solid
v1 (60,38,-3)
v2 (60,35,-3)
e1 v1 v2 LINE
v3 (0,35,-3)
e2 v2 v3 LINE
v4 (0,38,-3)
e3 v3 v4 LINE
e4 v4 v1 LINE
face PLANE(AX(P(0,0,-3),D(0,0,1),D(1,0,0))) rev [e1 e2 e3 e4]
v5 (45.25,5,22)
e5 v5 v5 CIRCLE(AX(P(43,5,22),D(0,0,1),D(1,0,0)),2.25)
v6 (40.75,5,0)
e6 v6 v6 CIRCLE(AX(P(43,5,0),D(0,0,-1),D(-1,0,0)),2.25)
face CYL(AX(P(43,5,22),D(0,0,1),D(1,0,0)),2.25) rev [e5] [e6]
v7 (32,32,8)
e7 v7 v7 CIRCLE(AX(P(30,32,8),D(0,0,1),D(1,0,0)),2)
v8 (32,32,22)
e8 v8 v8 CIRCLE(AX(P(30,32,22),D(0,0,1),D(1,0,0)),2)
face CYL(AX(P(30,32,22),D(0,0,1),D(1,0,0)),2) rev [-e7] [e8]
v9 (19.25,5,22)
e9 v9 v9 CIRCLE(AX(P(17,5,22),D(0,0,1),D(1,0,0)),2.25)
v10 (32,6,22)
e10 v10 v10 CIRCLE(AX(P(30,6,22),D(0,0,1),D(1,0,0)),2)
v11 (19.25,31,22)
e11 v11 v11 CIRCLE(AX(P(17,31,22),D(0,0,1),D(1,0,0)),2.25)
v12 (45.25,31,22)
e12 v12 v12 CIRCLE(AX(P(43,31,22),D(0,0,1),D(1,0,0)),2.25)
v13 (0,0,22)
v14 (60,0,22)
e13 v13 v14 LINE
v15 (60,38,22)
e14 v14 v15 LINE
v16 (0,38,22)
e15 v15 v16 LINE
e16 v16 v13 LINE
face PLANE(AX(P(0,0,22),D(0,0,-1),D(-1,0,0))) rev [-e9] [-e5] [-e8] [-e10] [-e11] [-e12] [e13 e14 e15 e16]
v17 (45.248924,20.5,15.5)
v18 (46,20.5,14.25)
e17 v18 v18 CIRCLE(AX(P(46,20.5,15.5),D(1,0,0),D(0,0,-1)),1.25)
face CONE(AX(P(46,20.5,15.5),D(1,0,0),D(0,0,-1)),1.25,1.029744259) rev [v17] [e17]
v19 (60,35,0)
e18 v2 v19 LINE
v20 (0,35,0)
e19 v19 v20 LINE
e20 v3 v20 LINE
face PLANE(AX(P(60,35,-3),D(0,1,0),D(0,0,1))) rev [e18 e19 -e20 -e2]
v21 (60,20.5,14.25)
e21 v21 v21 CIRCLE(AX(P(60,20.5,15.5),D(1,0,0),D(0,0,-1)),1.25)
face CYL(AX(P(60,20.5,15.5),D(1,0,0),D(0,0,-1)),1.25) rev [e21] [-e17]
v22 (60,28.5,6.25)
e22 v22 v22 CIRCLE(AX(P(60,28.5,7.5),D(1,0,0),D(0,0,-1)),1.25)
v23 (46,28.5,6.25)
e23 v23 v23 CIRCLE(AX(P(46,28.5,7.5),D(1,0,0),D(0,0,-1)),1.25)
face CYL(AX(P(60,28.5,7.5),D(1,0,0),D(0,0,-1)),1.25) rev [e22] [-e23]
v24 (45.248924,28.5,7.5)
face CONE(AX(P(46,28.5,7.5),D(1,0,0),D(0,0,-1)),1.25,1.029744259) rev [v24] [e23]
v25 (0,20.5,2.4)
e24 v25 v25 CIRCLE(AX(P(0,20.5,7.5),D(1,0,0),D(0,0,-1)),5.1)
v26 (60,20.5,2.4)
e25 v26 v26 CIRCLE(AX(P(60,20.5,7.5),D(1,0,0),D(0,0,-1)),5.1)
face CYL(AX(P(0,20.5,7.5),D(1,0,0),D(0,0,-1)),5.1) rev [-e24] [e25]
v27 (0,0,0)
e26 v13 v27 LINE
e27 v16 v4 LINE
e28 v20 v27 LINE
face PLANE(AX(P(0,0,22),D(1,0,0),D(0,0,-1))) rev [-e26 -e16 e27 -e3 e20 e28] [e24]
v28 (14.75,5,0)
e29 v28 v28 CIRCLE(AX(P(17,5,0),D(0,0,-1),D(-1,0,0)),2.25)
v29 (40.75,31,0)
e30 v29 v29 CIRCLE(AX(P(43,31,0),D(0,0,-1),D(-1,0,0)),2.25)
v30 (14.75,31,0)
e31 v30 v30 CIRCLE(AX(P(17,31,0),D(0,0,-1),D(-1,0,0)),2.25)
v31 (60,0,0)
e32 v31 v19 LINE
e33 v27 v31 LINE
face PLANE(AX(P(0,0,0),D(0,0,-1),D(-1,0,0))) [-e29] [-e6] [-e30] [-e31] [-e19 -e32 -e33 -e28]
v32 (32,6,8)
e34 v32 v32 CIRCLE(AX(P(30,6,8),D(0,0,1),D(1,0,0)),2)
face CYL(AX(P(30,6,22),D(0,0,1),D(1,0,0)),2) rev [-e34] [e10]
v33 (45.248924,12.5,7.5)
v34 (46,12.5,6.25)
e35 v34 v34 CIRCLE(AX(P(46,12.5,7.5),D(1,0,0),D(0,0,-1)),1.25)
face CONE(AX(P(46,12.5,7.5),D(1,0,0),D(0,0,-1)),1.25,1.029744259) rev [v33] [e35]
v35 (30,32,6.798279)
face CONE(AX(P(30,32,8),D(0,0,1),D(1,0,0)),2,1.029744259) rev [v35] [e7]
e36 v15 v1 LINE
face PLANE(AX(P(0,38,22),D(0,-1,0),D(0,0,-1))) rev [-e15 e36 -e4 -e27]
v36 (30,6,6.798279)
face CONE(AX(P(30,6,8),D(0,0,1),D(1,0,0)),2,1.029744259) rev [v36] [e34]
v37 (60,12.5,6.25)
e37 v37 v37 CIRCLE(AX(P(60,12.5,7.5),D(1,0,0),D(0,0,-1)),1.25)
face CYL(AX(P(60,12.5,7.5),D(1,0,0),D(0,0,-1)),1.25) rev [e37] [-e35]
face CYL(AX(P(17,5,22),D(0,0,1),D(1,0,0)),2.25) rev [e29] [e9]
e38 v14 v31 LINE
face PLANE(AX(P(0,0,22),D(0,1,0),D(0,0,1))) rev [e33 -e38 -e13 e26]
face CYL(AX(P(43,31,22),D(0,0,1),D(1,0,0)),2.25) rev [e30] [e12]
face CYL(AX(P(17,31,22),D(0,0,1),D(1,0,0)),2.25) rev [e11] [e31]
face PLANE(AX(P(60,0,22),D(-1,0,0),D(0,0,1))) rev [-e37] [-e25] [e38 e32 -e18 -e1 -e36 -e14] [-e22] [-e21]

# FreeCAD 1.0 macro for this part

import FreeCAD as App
import Part
import Sketcher


def add_polygon(sketch, points):
    """Adds a closed chain of lines whose ends are joined by coincident constraints."""
    first, n = sketch.GeometryCount, len(points)
    for a, b in zip(points, points[1:] + points[:1]):
        sketch.addGeometry(Part.LineSegment(App.Vector(*a, 0), App.Vector(*b, 0)), False)
    for i in range(n):
        sketch.addConstraint(Sketcher.Constraint("Coincident", first + i, 2, first + (i + 1) % n, 1))

doc = App.newDocument("Part")
body = doc.addObject("PartDesign::Body", "Body")

# Sketch on XY plane
sketch1 = body.newObject("Sketcher::SketchObject", "Sketch")
sketch1.AttachmentSupport = (doc.getObject("XY_Plane"), [""])
sketch1.MapMode = "FlatFace"
add_polygon(sketch1, [(0, 38), (0, 0), (60, 0), (60, 38)])  # lines 0-3
sketch1.addConstraint(Sketcher.Constraint("Vertical", 0))
sketch1.addConstraint(Sketcher.Constraint("Horizontal", 1))
sketch1.addConstraint(Sketcher.Constraint("Vertical", 2))
sketch1.addConstraint(Sketcher.Constraint("Horizontal", 3))
sketch1.addConstraint(Sketcher.Constraint("Coincident", 0, 2, -1, 1))
sketch1.addConstraint(Sketcher.Constraint("DistanceX", 1, 1, 1, 2, 60.0))
sketch1.addConstraint(Sketcher.Constraint("DistanceY", 0, 2, 0, 1, 38.0))
pad1 = body.newObject("PartDesign::Pad", "Pad")
pad1.Profile = sketch1
pad1.Length = 22

# Sketch on YZ plane
sketch2 = body.newObject("Sketcher::SketchObject", "Sketch001")
sketch2.AttachmentSupport = (doc.getObject("YZ_Plane"), [""])
sketch2.MapMode = "FlatFace"
sketch2.AttachmentOffset = App.Placement(App.Vector(0, 0, 60), App.Rotation())
sketch2.addGeometry(Part.Circle(App.Vector(20, 8, 0), App.Vector(0, 0, 1), 5), False)
sketch2.addConstraint(Sketcher.Constraint("Diameter", 0, 10.2))
sketch2.addConstraint(Sketcher.Constraint("DistanceX", -1, 1, 0, 3, 20.5))
sketch2.addConstraint(Sketcher.Constraint("DistanceY", -1, 1, 0, 3, 7.5))
pocket1 = body.newObject("PartDesign::Pocket", "Pocket")
pocket1.Profile = sketch2
pocket1.Type = "ThroughAll"

# Sketch on XY plane
sketch3 = body.newObject("Sketcher::SketchObject", "Sketch002")
sketch3.AttachmentSupport = (doc.getObject("XY_Plane"), [""])
sketch3.MapMode = "FlatFace"
sketch3.AttachmentOffset = App.Placement(App.Vector(0, 0, 22), App.Rotation())
sketch3.addGeometry(Part.Circle(App.Vector(30, 6, 0), App.Vector(0, 0, 1), 2), False)
sketch3.addGeometry(Part.Circle(App.Vector(30, 32, 0), App.Vector(0, 0, 1), 2), False)
sketch3.addConstraint(Sketcher.Constraint("Equal", 0, 1))
sketch3.addConstraint(Sketcher.Constraint("Vertical", 0, 3, 1, 3))
sketch3.addConstraint(Sketcher.Constraint("Diameter", 0, 4.0))
sketch3.addConstraint(Sketcher.Constraint("DistanceX", -1, 1, 0, 3, 30.0))
sketch3.addConstraint(Sketcher.Constraint("DistanceY", -1, 1, 0, 3, 6.0))
sketch3.addConstraint(Sketcher.Constraint("DistanceY", -1, 1, 1, 3, 32.0))
doc.recompute()
hole = body.newObject("PartDesign::Hole", "Hole")
hole.Profile = sketch3
hole.ThreadType = "None"
hole.Diameter = 4
hole.DepthType = "Dimension"
hole.Depth = 14
hole.DrillPoint = "Angled"
hole.DrillPointAngle = 118

# Sketch on XY plane
sketch4 = body.newObject("Sketcher::SketchObject", "Sketch003")
sketch4.AttachmentSupport = (doc.getObject("XY_Plane"), [""])
sketch4.MapMode = "FlatFace"
add_polygon(sketch4, [(60, 38), (60, 35), (0, 35), (0, 38)])  # lines 0-3
sketch4.addConstraint(Sketcher.Constraint("Vertical", 0))
sketch4.addConstraint(Sketcher.Constraint("Horizontal", 1))
sketch4.addConstraint(Sketcher.Constraint("Vertical", 2))
sketch4.addConstraint(Sketcher.Constraint("Horizontal", 3))
sketch4.addConstraint(Sketcher.Constraint("PointOnObject", 1, 2, -2))
sketch4.addConstraint(Sketcher.Constraint("DistanceX", 1, 2, 1, 1, 60.0))
sketch4.addConstraint(Sketcher.Constraint("DistanceY", 0, 2, 0, 1, 3.0))
sketch4.addConstraint(Sketcher.Constraint("DistanceY", -1, 1, 0, 2, 35.0))
pad2 = body.newObject("PartDesign::Pad", "Pad001")
pad2.Profile = sketch4
pad2.Length = 3
pad2.Reversed = True

# Sketch on YZ plane
sketch5 = body.newObject("Sketcher::SketchObject", "Sketch004")
sketch5.AttachmentSupport = (doc.getObject("YZ_Plane"), [""])
sketch5.MapMode = "FlatFace"
sketch5.AttachmentOffset = App.Placement(App.Vector(0, 0, 60), App.Rotation())
sketch5.addGeometry(Part.Circle(App.Vector(20.5, 15.5, 0), App.Vector(0, 0, 1), 1.2), False)
sketch5.addGeometry(Part.Circle(App.Vector(12.5, 7.5, 0), App.Vector(0, 0, 1), 1.2), False)
sketch5.addGeometry(Part.Circle(App.Vector(28.5, 7.5, 0), App.Vector(0, 0, 1), 1.2), False)
sketch5.addConstraint(Sketcher.Constraint("Equal", 0, 1))
sketch5.addConstraint(Sketcher.Constraint("Equal", 1, 2))
sketch5.addConstraint(Sketcher.Constraint("Horizontal", 1, 3, 2, 3))
sketch5.addConstraint(Sketcher.Constraint("Diameter", 0, 2.5))
sketch5.addConstraint(Sketcher.Constraint("DistanceX", 1, 3, 0, 3, 8.0))
sketch5.addConstraint(Sketcher.Constraint("DistanceY", 1, 3, 0, 3, 8.0))
sketch5.addConstraint(Sketcher.Constraint("DistanceX", 0, 3, 2, 3, 8.0))
sketch5.addConstraint(Sketcher.Constraint("DistanceX", -1, 1, 0, 3, 20.5))
sketch5.addConstraint(Sketcher.Constraint("DistanceY", -1, 1, 0, 3, 15.5))
doc.recompute()
hole2 = body.newObject("PartDesign::Hole", "Hole001")
hole2.Profile = sketch5
hole2.ThreadType = "None"
hole2.Diameter = 2.5
hole2.DepthType = "Dimension"
hole2.Depth = 14
hole2.DrillPoint = "Angled"
hole2.DrillPointAngle = 118

# Sketch on XY plane
sketch6 = body.newObject("Sketcher::SketchObject", "Sketch005")
sketch6.AttachmentSupport = (doc.getObject("XY_Plane"), [""])
sketch6.MapMode = "FlatFace"
sketch6.AttachmentOffset = App.Placement(App.Vector(0, 0, 22), App.Rotation())
sketch6.addGeometry(Part.Circle(App.Vector(43, 5, 0), App.Vector(0, 0, 1), 2.2), False)
sketch6.addGeometry(Part.Circle(App.Vector(43, 31, 0), App.Vector(0, 0, 1), 2.2), False)
sketch6.addGeometry(Part.Circle(App.Vector(17, 5, 0), App.Vector(0, 0, 1), 2.2), False)
sketch6.addGeometry(Part.Circle(App.Vector(17, 31, 0), App.Vector(0, 0, 1), 2.2), False)
sketch6.addConstraint(Sketcher.Constraint("Equal", 0, 1))
sketch6.addConstraint(Sketcher.Constraint("Equal", 1, 2))
sketch6.addConstraint(Sketcher.Constraint("Equal", 2, 3))
sketch6.addConstraint(Sketcher.Constraint("Horizontal", 0, 3, 2, 3))
sketch6.addConstraint(Sketcher.Constraint("Horizontal", 1, 3, 3, 3))
sketch6.addConstraint(Sketcher.Constraint("Vertical", 0, 3, 1, 3))
sketch6.addConstraint(Sketcher.Constraint("Vertical", 2, 3, 3, 3))
sketch6.addConstraint(Sketcher.Constraint("Diameter", 0, 4.5))
sketch6.addConstraint(Sketcher.Constraint("DistanceX", -1, 1, 0, 3, 43.0))
sketch6.addConstraint(Sketcher.Constraint("DistanceY", -1, 1, 0, 3, 5.0))
sketch6.addConstraint(Sketcher.Constraint("DistanceY", -1, 1, 1, 3, 31.0))
sketch6.addConstraint(Sketcher.Constraint("DistanceX", -1, 1, 2, 3, 17.0))
doc.recompute()
hole3 = body.newObject("PartDesign::Hole", "Hole002")
hole3.Profile = sketch6
hole3.ThreadType = "None"
hole3.Diameter = 4.5
hole3.DepthType = "ThroughAll"

doc.recompute()
